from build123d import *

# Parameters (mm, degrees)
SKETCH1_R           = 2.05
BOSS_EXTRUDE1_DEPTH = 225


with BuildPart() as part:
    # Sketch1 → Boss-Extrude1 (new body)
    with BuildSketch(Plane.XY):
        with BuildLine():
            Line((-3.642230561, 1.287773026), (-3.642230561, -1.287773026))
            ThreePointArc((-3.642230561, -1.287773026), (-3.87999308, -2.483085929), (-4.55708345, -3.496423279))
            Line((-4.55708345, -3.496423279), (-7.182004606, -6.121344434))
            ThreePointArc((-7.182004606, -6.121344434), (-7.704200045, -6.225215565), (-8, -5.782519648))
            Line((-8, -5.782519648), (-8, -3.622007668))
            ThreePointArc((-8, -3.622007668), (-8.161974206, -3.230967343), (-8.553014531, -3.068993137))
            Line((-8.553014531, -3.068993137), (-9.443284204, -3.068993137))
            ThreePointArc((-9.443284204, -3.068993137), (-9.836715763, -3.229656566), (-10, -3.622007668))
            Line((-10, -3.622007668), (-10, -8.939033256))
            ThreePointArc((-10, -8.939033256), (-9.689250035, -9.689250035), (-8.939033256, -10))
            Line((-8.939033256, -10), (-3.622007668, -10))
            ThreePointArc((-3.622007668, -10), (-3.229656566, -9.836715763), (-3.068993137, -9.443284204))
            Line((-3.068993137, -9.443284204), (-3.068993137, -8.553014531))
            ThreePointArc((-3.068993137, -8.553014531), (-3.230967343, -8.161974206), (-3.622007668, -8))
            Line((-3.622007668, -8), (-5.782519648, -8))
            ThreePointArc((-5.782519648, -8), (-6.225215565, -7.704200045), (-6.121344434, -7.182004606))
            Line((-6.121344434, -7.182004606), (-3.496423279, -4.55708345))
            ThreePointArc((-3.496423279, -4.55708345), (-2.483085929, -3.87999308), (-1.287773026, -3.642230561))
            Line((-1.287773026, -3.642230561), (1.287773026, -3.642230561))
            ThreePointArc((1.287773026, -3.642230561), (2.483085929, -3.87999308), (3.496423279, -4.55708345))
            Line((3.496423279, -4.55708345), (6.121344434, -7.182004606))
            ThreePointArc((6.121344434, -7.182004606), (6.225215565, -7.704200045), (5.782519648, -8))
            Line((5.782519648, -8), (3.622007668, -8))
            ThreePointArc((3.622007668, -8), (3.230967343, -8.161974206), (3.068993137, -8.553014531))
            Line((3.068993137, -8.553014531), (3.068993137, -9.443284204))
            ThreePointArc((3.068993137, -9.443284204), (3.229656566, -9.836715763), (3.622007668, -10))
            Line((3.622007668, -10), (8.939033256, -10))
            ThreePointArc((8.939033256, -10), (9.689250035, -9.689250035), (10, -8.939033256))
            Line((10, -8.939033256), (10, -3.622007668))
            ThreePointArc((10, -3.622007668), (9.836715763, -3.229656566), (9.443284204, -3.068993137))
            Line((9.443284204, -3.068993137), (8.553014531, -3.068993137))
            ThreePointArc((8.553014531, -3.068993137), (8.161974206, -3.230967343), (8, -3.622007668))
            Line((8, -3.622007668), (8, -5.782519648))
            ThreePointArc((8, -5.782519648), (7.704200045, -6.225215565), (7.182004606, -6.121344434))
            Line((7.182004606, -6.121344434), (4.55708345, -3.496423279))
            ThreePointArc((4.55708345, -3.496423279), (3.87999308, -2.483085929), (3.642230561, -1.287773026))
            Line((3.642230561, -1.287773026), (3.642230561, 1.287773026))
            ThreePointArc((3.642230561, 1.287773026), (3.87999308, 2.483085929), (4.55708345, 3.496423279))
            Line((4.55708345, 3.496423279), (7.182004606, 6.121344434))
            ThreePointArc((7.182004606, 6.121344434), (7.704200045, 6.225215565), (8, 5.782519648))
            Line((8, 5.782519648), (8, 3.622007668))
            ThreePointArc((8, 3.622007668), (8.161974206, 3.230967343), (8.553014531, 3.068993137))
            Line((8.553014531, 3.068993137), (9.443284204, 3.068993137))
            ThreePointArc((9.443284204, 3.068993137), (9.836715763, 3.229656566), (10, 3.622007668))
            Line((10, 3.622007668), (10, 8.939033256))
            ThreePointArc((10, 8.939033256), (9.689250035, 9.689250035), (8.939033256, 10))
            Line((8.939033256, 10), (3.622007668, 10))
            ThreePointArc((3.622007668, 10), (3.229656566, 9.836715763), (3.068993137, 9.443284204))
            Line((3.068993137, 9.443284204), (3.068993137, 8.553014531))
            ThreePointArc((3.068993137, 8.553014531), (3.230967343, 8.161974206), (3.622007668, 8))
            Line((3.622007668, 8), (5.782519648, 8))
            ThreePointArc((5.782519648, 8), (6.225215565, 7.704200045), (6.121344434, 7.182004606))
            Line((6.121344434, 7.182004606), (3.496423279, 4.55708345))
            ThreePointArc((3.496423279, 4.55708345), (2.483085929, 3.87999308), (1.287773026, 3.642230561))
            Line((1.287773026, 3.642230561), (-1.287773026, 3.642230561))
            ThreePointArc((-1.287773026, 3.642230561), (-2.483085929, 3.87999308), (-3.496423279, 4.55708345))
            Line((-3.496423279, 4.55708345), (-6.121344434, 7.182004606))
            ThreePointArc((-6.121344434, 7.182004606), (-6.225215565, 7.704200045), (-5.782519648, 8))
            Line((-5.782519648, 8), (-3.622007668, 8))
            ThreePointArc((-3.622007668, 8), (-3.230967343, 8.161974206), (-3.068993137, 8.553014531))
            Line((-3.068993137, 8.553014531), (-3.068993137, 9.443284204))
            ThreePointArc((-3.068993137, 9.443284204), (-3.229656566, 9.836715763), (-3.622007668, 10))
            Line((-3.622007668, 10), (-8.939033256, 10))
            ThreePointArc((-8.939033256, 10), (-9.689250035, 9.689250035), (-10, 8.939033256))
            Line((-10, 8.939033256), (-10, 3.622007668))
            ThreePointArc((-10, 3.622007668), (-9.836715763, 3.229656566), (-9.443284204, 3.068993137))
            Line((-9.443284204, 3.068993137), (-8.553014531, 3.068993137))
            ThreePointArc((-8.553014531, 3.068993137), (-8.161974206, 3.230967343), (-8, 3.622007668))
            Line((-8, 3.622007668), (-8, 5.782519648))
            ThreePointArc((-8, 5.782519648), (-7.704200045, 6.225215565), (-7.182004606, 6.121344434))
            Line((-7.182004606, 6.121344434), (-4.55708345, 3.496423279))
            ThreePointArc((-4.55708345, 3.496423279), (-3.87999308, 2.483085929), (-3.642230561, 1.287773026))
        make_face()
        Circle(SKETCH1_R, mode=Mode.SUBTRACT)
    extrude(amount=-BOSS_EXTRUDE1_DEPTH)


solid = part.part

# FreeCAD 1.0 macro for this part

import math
import FreeCAD as App
import Part
import Sketcher

V = App.Vector

doc = App.newDocument("Part")
params = doc.addObject("Spreadsheet::Sheet", "Params")
for row, (alias, value) in enumerate([
    ("sketch1_diameter", "4.1 mm"),
    ("pad1_length", "225 mm"),
], start=1):
    params.set(f"A{row}", alias)
    params.set(f"B{row}", "=" + value)
    params.setAlias(f"B{row}", alias)

body = doc.addObject("PartDesign::Body", "Body")

# Sketch on XY plane
sketch1 = body.newObject("Sketcher::SketchObject", "Sketch")
sketch1.AttachmentSupport = (doc.getObject("XY_Plane"), [""])
sketch1.MapMode = "FlatFace"
sketch1.addGeometry([
    Part.LineSegment(V(-3.642231, 1.287773, 0), V(-3.642231, -1.287773, 0)),  # 0
    Part.ArcOfCircle(Part.Circle(V(-6.765734, -1.287773, 0), V(0, 0, 1), 3.123503), math.radians(-45), math.radians(0)),  # 1
    Part.LineSegment(V(-4.557083, -3.496423, 0), V(-7.182005, -6.121344, 0)),  # 2
    Part.ArcOfCircle(Part.Circle(V(-7.520829, -5.78252, 0), V(0, 0, 1), 0.479171), math.radians(180), math.radians(315)),  # 3
    Part.LineSegment(V(-8, -5.78252, 0), V(-8, -3.622008, 0)),  # 4
    Part.ArcOfCircle(Part.Circle(V(-8.553015, -3.622008, 0), V(0, 0, 1), 0.553015), math.radians(0), math.radians(90)),  # 5
    Part.LineSegment(V(-8.553015, -3.068993, 0), V(-9.443284, -3.068993, 0)),  # 6
    Part.ArcOfCircle(Part.Circle(V(-9.446973, -3.622008, 0), V(0, 0, 1), 0.553027), math.radians(89.617806), math.radians(180)),  # 7
    Part.LineSegment(V(-10, -3.622008, 0), V(-10, -8.939033, 0)),  # 8
    Part.ArcOfCircle(Part.Circle(V(-8.939033, -8.939033, 0), V(0, 0, 1), 1.060967), math.radians(-180), math.radians(-90)),  # 9
    Part.LineSegment(V(-8.939033, -10, 0), V(-3.622008, -10, 0)),  # 10
    Part.ArcOfCircle(Part.Circle(V(-3.622008, -9.446973, 0), V(0, 0, 1), 0.553027), math.radians(-90), math.radians(0.382194)),  # 11
    Part.LineSegment(V(-3.068993, -9.443284, 0), V(-3.068993, -8.553015, 0)),  # 12
    Part.ArcOfCircle(Part.Circle(V(-3.622008, -8.553015, 0), V(0, 0, 1), 0.553015), math.radians(0), math.radians(90)),  # 13
    Part.LineSegment(V(-3.622008, -8, 0), V(-5.78252, -8, 0)),  # 14
    Part.ArcOfCircle(Part.Circle(V(-5.78252, -7.520829, 0), V(0, 0, 1), 0.479171), math.radians(135), math.radians(270)),  # 15
    Part.LineSegment(V(-6.121344, -7.182005, 0), V(-3.496423, -4.557083, 0)),  # 16
    Part.ArcOfCircle(Part.Circle(V(-1.287773, -6.765734, 0), V(0, 0, 1), 3.123503), math.radians(90), math.radians(135)),  # 17
    Part.LineSegment(V(-1.287773, -3.642231, 0), V(1.287773, -3.642231, 0)),  # 18
    Part.ArcOfCircle(Part.Circle(V(1.287773, -6.765734, 0), V(0, 0, 1), 3.123503), math.radians(45), math.radians(90)),  # 19
    Part.LineSegment(V(3.496423, -4.557083, 0), V(6.121344, -7.182005, 0)),  # 20
    Part.ArcOfCircle(Part.Circle(V(5.78252, -7.520829, 0), V(0, 0, 1), 0.479171), math.radians(-90), math.radians(45)),  # 21
    Part.LineSegment(V(5.78252, -8, 0), V(3.622008, -8, 0)),  # 22
    Part.ArcOfCircle(Part.Circle(V(3.622008, -8.553015, 0), V(0, 0, 1), 0.553015), math.radians(90), math.radians(180)),  # 23
    Part.LineSegment(V(3.068993, -8.553015, 0), V(3.068993, -9.443284, 0)),  # 24
    Part.ArcOfCircle(Part.Circle(V(3.622008, -9.446973, 0), V(0, 0, 1), 0.553027), math.radians(179.617806), math.radians(270)),  # 25
    Part.LineSegment(V(3.622008, -10, 0), V(8.939033, -10, 0)),  # 26
    Part.ArcOfCircle(Part.Circle(V(8.939033, -8.939033, 0), V(0, 0, 1), 1.060967), math.radians(-90), math.radians(0)),  # 27
    Part.LineSegment(V(10, -8.939033, 0), V(10, -3.622008, 0)),  # 28
    Part.ArcOfCircle(Part.Circle(V(9.446973, -3.622008, 0), V(0, 0, 1), 0.553027), math.radians(0), math.radians(90.382194)),  # 29
    Part.LineSegment(V(9.443284, -3.068993, 0), V(8.553015, -3.068993, 0)),  # 30
    Part.ArcOfCircle(Part.Circle(V(8.553015, -3.622008, 0), V(0, 0, 1), 0.553015), math.radians(90), math.radians(180)),  # 31
    Part.LineSegment(V(8, -3.622008, 0), V(8, -5.78252, 0)),  # 32
    Part.ArcOfCircle(Part.Circle(V(7.520829, -5.78252, 0), V(0, 0, 1), 0.479171), math.radians(-135), math.radians(0)),  # 33
    Part.LineSegment(V(7.182005, -6.121344, 0), V(4.557083, -3.496423, 0)),  # 34
    Part.ArcOfCircle(Part.Circle(V(6.765734, -1.287773, 0), V(0, 0, 1), 3.123503), math.radians(180), math.radians(225)),  # 35
    Part.LineSegment(V(3.642231, -1.287773, 0), V(3.642231, 1.287773, 0)),  # 36
    Part.ArcOfCircle(Part.Circle(V(6.765734, 1.287773, 0), V(0, 0, 1), 3.123503), math.radians(135), math.radians(180)),  # 37
    Part.LineSegment(V(4.557083, 3.496423, 0), V(7.182005, 6.121344, 0)),  # 38
    Part.ArcOfCircle(Part.Circle(V(7.520829, 5.78252, 0), V(0, 0, 1), 0.479171), math.radians(0), math.radians(135)),  # 39
    Part.LineSegment(V(8, 5.78252, 0), V(8, 3.622008, 0)),  # 40
    Part.ArcOfCircle(Part.Circle(V(8.553015, 3.622008, 0), V(0, 0, 1), 0.553015), math.radians(180), math.radians(270)),  # 41
    Part.LineSegment(V(8.553015, 3.068993, 0), V(9.443284, 3.068993, 0)),  # 42
    Part.ArcOfCircle(Part.Circle(V(9.446973, 3.622008, 0), V(0, 0, 1), 0.553027), math.radians(-90.382194), math.radians(0)),  # 43
    Part.LineSegment(V(10, 3.622008, 0), V(10, 8.939033, 0)),  # 44
    Part.ArcOfCircle(Part.Circle(V(8.939033, 8.939033, 0), V(0, 0, 1), 1.060967), math.radians(0), math.radians(90)),  # 45
    Part.LineSegment(V(8.939033, 10, 0), V(3.622008, 10, 0)),  # 46
    Part.ArcOfCircle(Part.Circle(V(3.622008, 9.446973, 0), V(0, 0, 1), 0.553027), math.radians(90), math.radians(180.382194)),  # 47
    Part.LineSegment(V(3.068993, 9.443284, 0), V(3.068993, 8.553015, 0)),  # 48
    Part.ArcOfCircle(Part.Circle(V(3.622008, 8.553015, 0), V(0, 0, 1), 0.553015), math.radians(180), math.radians(270)),  # 49
    Part.LineSegment(V(3.622008, 8, 0), V(5.78252, 8, 0)),  # 50
    Part.ArcOfCircle(Part.Circle(V(5.78252, 7.520829, 0), V(0, 0, 1), 0.479171), math.radians(-45), math.radians(90)),  # 51
    Part.LineSegment(V(6.121344, 7.182005, 0), V(3.496423, 4.557083, 0)),  # 52
    Part.ArcOfCircle(Part.Circle(V(1.287773, 6.765734, 0), V(0, 0, 1), 3.123503), math.radians(-90), math.radians(-45)),  # 53
    Part.LineSegment(V(1.287773, 3.642231, 0), V(-1.287773, 3.642231, 0)),  # 54
    Part.ArcOfCircle(Part.Circle(V(-1.287773, 6.765734, 0), V(0, 0, 1), 3.123503), math.radians(-135), math.radians(-90)),  # 55
    Part.LineSegment(V(-3.496423, 4.557083, 0), V(-6.121344, 7.182005, 0)),  # 56
    Part.ArcOfCircle(Part.Circle(V(-5.78252, 7.520829, 0), V(0, 0, 1), 0.479171), math.radians(90), math.radians(225)),  # 57
    Part.LineSegment(V(-5.78252, 8, 0), V(-3.622008, 8, 0)),  # 58
    Part.ArcOfCircle(Part.Circle(V(-3.622008, 8.553015, 0), V(0, 0, 1), 0.553015), math.radians(-90), math.radians(0)),  # 59
    Part.LineSegment(V(-3.068993, 8.553015, 0), V(-3.068993, 9.443284, 0)),  # 60
    Part.ArcOfCircle(Part.Circle(V(-3.622008, 9.446973, 0), V(0, 0, 1), 0.553027), math.radians(-0.382194), math.radians(90)),  # 61
    Part.LineSegment(V(-3.622008, 10, 0), V(-8.939033, 10, 0)),  # 62
    Part.ArcOfCircle(Part.Circle(V(-8.939033, 8.939033, 0), V(0, 0, 1), 1.060967), math.radians(90), math.radians(180)),  # 63
    Part.LineSegment(V(-10, 8.939033, 0), V(-10, 3.622008, 0)),  # 64
    Part.ArcOfCircle(Part.Circle(V(-9.446973, 3.622008, 0), V(0, 0, 1), 0.553027), math.radians(180), math.radians(270.382194)),  # 65
    Part.LineSegment(V(-9.443284, 3.068993, 0), V(-8.553015, 3.068993, 0)),  # 66
    Part.ArcOfCircle(Part.Circle(V(-8.553015, 3.622008, 0), V(0, 0, 1), 0.553015), math.radians(-90), math.radians(0)),  # 67
    Part.LineSegment(V(-8, 3.622008, 0), V(-8, 5.78252, 0)),  # 68
    Part.ArcOfCircle(Part.Circle(V(-7.520829, 5.78252, 0), V(0, 0, 1), 0.479171), math.radians(45), math.radians(180)),  # 69
    Part.LineSegment(V(-7.182005, 6.121344, 0), V(-4.557083, 3.496423, 0)),  # 70
    Part.ArcOfCircle(Part.Circle(V(-6.765734, 1.287773, 0), V(0, 0, 1), 3.123503), math.radians(0), math.radians(45)),  # 71
    Part.Circle(V(0, 0, 0), V(0, 0, 1), 2.05),  # 72
], False)
sketch1.addConstraint([
    Sketcher.Constraint("Tangent", 0, 2, 1, 2),
    Sketcher.Constraint("Tangent", 1, 1, 2, 1),
    Sketcher.Constraint("Tangent", 2, 2, 3, 2),
    Sketcher.Constraint("Tangent", 3, 1, 4, 1),
    Sketcher.Constraint("Tangent", 4, 2, 5, 1),
    Sketcher.Constraint("Tangent", 5, 2, 6, 1),
    Sketcher.Constraint("Coincident", 6, 2, 7, 1),
    Sketcher.Constraint("Tangent", 7, 2, 8, 1),
    Sketcher.Constraint("Tangent", 8, 2, 9, 1),
    Sketcher.Constraint("Tangent", 9, 2, 10, 1),
    Sketcher.Constraint("Tangent", 10, 2, 11, 1),
    Sketcher.Constraint("Coincident", 11, 2, 12, 1),
    Sketcher.Constraint("Tangent", 12, 2, 13, 1),
    Sketcher.Constraint("Tangent", 13, 2, 14, 1),
    Sketcher.Constraint("Tangent", 14, 2, 15, 2),
    Sketcher.Constraint("Tangent", 15, 1, 16, 1),
    Sketcher.Constraint("Tangent", 16, 2, 17, 2),
    Sketcher.Constraint("Tangent", 17, 1, 18, 1),
    Sketcher.Constraint("Tangent", 18, 2, 19, 2),
    Sketcher.Constraint("Tangent", 19, 1, 20, 1),
    Sketcher.Constraint("Tangent", 20, 2, 21, 2),
    Sketcher.Constraint("Tangent", 21, 1, 22, 1),
    Sketcher.Constraint("Tangent", 22, 2, 23, 1),
    Sketcher.Constraint("Tangent", 23, 2, 24, 1),
    Sketcher.Constraint("Coincident", 24, 2, 25, 1),
    Sketcher.Constraint("Tangent", 25, 2, 26, 1),
    Sketcher.Constraint("Tangent", 26, 2, 27, 1),
    Sketcher.Constraint("Tangent", 27, 2, 28, 1),
    Sketcher.Constraint("Tangent", 28, 2, 29, 1),
    Sketcher.Constraint("Coincident", 29, 2, 30, 1),
    Sketcher.Constraint("Tangent", 30, 2, 31, 1),
    Sketcher.Constraint("Tangent", 31, 2, 32, 1),
    Sketcher.Constraint("Tangent", 32, 2, 33, 2),
    Sketcher.Constraint("Tangent", 33, 1, 34, 1),
    Sketcher.Constraint("Tangent", 34, 2, 35, 2),
    Sketcher.Constraint("Tangent", 35, 1, 36, 1),
    Sketcher.Constraint("Tangent", 36, 2, 37, 2),
    Sketcher.Constraint("Tangent", 37, 1, 38, 1),
    Sketcher.Constraint("Tangent", 38, 2, 39, 2),
    Sketcher.Constraint("Tangent", 39, 1, 40, 1),
    Sketcher.Constraint("Tangent", 40, 2, 41, 1),
    Sketcher.Constraint("Tangent", 41, 2, 42, 1),
    Sketcher.Constraint("Coincident", 42, 2, 43, 1),
    Sketcher.Constraint("Tangent", 43, 2, 44, 1),
    Sketcher.Constraint("Tangent", 44, 2, 45, 1),
    Sketcher.Constraint("Tangent", 45, 2, 46, 1),
    Sketcher.Constraint("Tangent", 46, 2, 47, 1),
    Sketcher.Constraint("Coincident", 47, 2, 48, 1),
    Sketcher.Constraint("Tangent", 48, 2, 49, 1),
    Sketcher.Constraint("Tangent", 49, 2, 50, 1),
    Sketcher.Constraint("Tangent", 50, 2, 51, 2),
    Sketcher.Constraint("Tangent", 51, 1, 52, 1),
    Sketcher.Constraint("Tangent", 52, 2, 53, 2),
    Sketcher.Constraint("Tangent", 53, 1, 54, 1),
    Sketcher.Constraint("Tangent", 54, 2, 55, 2),
    Sketcher.Constraint("Tangent", 55, 1, 56, 1),
    Sketcher.Constraint("Tangent", 56, 2, 57, 2),
    Sketcher.Constraint("Tangent", 57, 1, 58, 1),
    Sketcher.Constraint("Tangent", 58, 2, 59, 1),
    Sketcher.Constraint("Tangent", 59, 2, 60, 1),
    Sketcher.Constraint("Coincident", 60, 2, 61, 1),
    Sketcher.Constraint("Tangent", 61, 2, 62, 1),
    Sketcher.Constraint("Tangent", 62, 2, 63, 1),
    Sketcher.Constraint("Tangent", 63, 2, 64, 1),
    Sketcher.Constraint("Tangent", 64, 2, 65, 1),
    Sketcher.Constraint("Coincident", 65, 2, 66, 1),
    Sketcher.Constraint("Tangent", 66, 2, 67, 1),
    Sketcher.Constraint("Tangent", 67, 2, 68, 1),
    Sketcher.Constraint("Tangent", 68, 2, 69, 2),
    Sketcher.Constraint("Tangent", 69, 1, 70, 1),
    Sketcher.Constraint("Tangent", 70, 2, 71, 2),
    Sketcher.Constraint("Tangent", 71, 1, 0, 1),
    Sketcher.Constraint("Vertical", 0),
    Sketcher.Constraint("Vertical", 4),
    Sketcher.Constraint("Horizontal", 6),
    Sketcher.Constraint("Vertical", 8),
    Sketcher.Constraint("Horizontal", 10),
    Sketcher.Constraint("Vertical", 12),
    Sketcher.Constraint("Horizontal", 14),
    Sketcher.Constraint("Horizontal", 18),
    Sketcher.Constraint("Horizontal", 22),
    Sketcher.Constraint("Vertical", 24),
    Sketcher.Constraint("Horizontal", 26),
    Sketcher.Constraint("Vertical", 28),
    Sketcher.Constraint("Horizontal", 30),
    Sketcher.Constraint("Vertical", 32),
    Sketcher.Constraint("Vertical", 36),
    Sketcher.Constraint("Vertical", 40),
    Sketcher.Constraint("Horizontal", 42),
    Sketcher.Constraint("Vertical", 44),
    Sketcher.Constraint("Horizontal", 46),
    Sketcher.Constraint("Vertical", 48),
    Sketcher.Constraint("Horizontal", 50),
    Sketcher.Constraint("Horizontal", 54),
    Sketcher.Constraint("Horizontal", 58),
    Sketcher.Constraint("Vertical", 60),
    Sketcher.Constraint("Horizontal", 62),
    Sketcher.Constraint("Vertical", 64),
    Sketcher.Constraint("Horizontal", 66),
    Sketcher.Constraint("Vertical", 68),
    Sketcher.Constraint("Coincident", 72, 3, -1, 1),
    Sketcher.Constraint("Equal", 7, 11),
    Sketcher.Constraint("Equal", 5, 13),
    Sketcher.Constraint("Equal", 3, 15),
    Sketcher.Constraint("Equal", 1, 17),
    Sketcher.Constraint("Equal", 17, 19),
    Sketcher.Constraint("Equal", 15, 21),
    Sketcher.Constraint("Equal", 13, 23),
    Sketcher.Constraint("Equal", 11, 25),
    Sketcher.Constraint("Equal", 9, 27),
    Sketcher.Constraint("Equal", 25, 29),
    Sketcher.Constraint("Equal", 23, 31),
    Sketcher.Constraint("Equal", 21, 33),
    Sketcher.Constraint("Equal", 19, 35),
    Sketcher.Constraint("Equal", 35, 37),
    Sketcher.Constraint("Equal", 33, 39),
    Sketcher.Constraint("Equal", 31, 41),
    Sketcher.Constraint("Equal", 29, 43),
    Sketcher.Constraint("Equal", 27, 45),
    Sketcher.Constraint("Equal", 43, 47),
    Sketcher.Constraint("Equal", 41, 49),
    Sketcher.Constraint("Equal", 39, 51),
    Sketcher.Constraint("Equal", 37, 53),
    Sketcher.Constraint("Equal", 53, 55),
    Sketcher.Constraint("Equal", 51, 57),
    Sketcher.Constraint("Equal", 49, 59),
    Sketcher.Constraint("Equal", 47, 61),
    Sketcher.Constraint("Equal", 45, 63),
    Sketcher.Constraint("Equal", 61, 65),
    Sketcher.Constraint("Equal", 59, 67),
    Sketcher.Constraint("Equal", 57, 69),
    Sketcher.Constraint("Equal", 55, 71),
    Sketcher.Constraint("Symmetric", 1, 3, 37, 3, -1, 1),
    Sketcher.Constraint("Symmetric", 3, 3, 39, 3, -1, 1),
    Sketcher.Constraint("Symmetric", 7, 3, 43, 3, -1, 1),
    Sketcher.Constraint("Symmetric", 11, 3, 47, 3, -1, 1),
    Sketcher.Constraint("Symmetric", 13, 3, 49, 3, -1, 1),
    Sketcher.Constraint("Symmetric", 17, 3, 53, 3, -1, 1),
    Sketcher.Constraint("Symmetric", 21, 3, 57, 3, -1, 1),
    Sketcher.Constraint("Symmetric", 25, 3, 61, 3, -1, 1),
    Sketcher.Constraint("Symmetric", 29, 3, 65, 3, -1, 1),
    Sketcher.Constraint("Symmetric", 31, 3, 67, 3, -1, 1),
    Sketcher.Constraint("Symmetric", 33, 1, 69, 1, -1, 1),
    Sketcher.Constraint("Symmetric", 15, 3, 21, 3, -2),
    Sketcher.Constraint("Symmetric", 11, 3, 25, 3, -2),
    Sketcher.Constraint("Symmetric", 7, 3, 29, 3, -2),
    Sketcher.Constraint("Symmetric", 5, 3, 31, 3, -2),
    Sketcher.Constraint("Symmetric", 2, 2, 33, 1, -2),
    Sketcher.Constraint("Symmetric", 52, 2, 55, 1, -2),
    Sketcher.Constraint("Parallel", 2, 16),
    Sketcher.Constraint("Perpendicular", 16, 20),
    Sketcher.Constraint("Parallel", 20, 34),
    Sketcher.Constraint("Horizontal", 5, 3, 7, 3),
    Sketcher.Constraint("Horizontal", 41, 3, 43, 3),
    Sketcher.Constraint("Horizontal", 11, 2, 24, 2),
    Sketcher.Constraint("Horizontal", 47, 2, 60, 2),
    Sketcher.Constraint("Equal", 54, 0),
    Sketcher.Constraint("Equal", 58, 4),
    Sketcher.Constraint("Equal", 62, 8),
    Sketcher.Constraint("Equal", 66, 12),
    Sketcher.Constraint("Equal", 2, 16),
    Sketcher.Constraint("Diameter", 72, 4.1),
    Sketcher.Constraint("DistanceX", 3, 1, -1, 1, 8.0),
    Sketcher.Constraint("DistanceX", 7, 2, -1, 1, 10.0),
    Sketcher.Constraint("DistanceY", 13, 2, -1, 1, 8.0),
    Sketcher.Constraint("Radius", 3, 0.479171),
    Sketcher.Constraint("Radius", 1, 3.123503),
    Sketcher.Constraint("Radius", 5, 0.553015),
    Sketcher.Constraint("Radius", 9, 1.060967),
    Sketcher.Constraint("Distance", 2, 3.712199),
    Sketcher.Constraint("DistanceX", 6, 2, 6, 1, 0.89027),
    Sketcher.Constraint("DistanceX", 14, 2, 14, 1, 2.160512),
    Sketcher.Constraint("DistanceX", 10, 1, 10, 2, 5.317026),
])
sketch1.setExpression("Constraints[161]", "Params.sketch1_diameter")
pad1 = body.newObject("PartDesign::Pad", "Pad")
pad1.Profile = sketch1
pad1.setExpression("Length", "Params.pad1_length")
pad1.Reversed = True

doc.recompute()
